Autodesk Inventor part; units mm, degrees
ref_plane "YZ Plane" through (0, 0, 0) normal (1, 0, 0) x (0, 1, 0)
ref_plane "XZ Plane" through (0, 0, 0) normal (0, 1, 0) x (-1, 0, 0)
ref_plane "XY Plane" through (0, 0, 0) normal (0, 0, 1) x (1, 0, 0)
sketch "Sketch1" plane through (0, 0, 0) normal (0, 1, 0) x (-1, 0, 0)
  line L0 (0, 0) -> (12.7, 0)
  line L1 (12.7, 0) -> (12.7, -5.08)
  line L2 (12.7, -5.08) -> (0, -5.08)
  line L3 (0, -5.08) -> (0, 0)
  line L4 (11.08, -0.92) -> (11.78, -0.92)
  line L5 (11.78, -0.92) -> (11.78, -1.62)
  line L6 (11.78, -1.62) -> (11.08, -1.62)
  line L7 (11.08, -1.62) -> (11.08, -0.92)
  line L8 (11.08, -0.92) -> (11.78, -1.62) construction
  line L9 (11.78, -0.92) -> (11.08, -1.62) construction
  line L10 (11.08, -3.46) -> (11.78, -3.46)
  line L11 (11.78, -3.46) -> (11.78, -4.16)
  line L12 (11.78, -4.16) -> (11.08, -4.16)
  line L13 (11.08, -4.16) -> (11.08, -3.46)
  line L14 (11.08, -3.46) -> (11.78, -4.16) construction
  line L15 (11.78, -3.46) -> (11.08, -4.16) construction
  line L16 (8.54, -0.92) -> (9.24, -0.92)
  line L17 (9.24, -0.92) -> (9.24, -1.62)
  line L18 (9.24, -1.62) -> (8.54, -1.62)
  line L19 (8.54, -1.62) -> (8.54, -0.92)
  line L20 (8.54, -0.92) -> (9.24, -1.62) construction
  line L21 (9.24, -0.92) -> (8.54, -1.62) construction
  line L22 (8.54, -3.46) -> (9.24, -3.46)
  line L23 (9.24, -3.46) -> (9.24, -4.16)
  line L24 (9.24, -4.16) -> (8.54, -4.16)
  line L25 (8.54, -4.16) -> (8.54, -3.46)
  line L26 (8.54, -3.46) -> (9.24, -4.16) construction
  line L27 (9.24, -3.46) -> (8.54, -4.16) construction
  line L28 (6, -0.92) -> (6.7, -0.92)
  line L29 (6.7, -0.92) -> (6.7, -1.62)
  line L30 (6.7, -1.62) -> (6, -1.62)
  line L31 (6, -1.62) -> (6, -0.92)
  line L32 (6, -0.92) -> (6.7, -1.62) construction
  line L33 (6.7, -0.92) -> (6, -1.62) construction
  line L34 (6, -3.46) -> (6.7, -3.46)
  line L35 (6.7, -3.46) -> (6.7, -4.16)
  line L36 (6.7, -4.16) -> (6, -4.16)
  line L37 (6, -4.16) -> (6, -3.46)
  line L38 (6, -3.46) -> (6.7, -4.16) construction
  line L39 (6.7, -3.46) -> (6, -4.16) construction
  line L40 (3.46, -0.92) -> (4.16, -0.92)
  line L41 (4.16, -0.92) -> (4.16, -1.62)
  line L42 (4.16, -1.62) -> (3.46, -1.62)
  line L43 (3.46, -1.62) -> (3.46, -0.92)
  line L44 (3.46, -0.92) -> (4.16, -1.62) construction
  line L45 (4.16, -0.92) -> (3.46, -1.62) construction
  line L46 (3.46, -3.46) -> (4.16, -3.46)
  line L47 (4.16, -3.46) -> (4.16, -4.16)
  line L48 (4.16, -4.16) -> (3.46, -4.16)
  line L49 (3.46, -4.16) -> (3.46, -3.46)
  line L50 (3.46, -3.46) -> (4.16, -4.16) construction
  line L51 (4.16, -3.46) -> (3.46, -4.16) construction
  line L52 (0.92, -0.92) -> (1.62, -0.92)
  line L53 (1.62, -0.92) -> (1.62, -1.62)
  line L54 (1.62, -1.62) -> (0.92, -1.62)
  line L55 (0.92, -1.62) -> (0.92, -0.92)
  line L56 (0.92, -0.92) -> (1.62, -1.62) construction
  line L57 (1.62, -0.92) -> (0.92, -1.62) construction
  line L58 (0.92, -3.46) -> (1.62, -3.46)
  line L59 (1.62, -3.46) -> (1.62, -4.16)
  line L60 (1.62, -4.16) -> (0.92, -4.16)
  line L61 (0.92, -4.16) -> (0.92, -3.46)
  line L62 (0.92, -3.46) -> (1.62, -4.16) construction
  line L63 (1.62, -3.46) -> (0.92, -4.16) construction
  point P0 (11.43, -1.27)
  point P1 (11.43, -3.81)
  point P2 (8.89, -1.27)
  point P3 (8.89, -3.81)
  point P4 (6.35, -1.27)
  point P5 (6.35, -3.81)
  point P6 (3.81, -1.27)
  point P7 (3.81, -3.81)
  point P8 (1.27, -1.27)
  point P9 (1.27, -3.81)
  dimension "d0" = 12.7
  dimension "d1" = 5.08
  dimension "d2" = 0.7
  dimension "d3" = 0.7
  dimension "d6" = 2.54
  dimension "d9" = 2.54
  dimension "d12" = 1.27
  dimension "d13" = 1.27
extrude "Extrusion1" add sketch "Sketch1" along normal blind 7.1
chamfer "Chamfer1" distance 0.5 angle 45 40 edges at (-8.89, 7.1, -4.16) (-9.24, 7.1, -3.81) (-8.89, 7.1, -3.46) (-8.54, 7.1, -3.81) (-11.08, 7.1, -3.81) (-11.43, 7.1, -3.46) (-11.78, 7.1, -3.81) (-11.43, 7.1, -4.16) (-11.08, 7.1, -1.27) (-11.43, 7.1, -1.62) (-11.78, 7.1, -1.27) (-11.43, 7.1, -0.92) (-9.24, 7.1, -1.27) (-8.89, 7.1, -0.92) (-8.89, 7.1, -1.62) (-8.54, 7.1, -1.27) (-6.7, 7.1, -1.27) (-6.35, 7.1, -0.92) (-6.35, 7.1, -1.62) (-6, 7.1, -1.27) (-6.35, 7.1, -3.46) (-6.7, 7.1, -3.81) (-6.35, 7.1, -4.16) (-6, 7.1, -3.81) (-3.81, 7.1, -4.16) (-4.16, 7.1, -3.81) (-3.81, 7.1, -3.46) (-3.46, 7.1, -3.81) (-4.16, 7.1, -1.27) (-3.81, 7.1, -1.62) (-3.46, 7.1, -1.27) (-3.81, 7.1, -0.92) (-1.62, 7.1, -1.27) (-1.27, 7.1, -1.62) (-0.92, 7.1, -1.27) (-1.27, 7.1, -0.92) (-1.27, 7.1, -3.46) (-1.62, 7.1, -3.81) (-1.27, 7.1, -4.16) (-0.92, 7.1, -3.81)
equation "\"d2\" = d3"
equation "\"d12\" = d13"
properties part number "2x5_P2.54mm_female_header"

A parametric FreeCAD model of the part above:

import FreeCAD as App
import Part
import Sketcher


def edges_at(feature, points):
    """Names of the edges that pass closest to the given points."""
    edges = feature.Shape.Edges
    near = lambda p: min(range(len(edges)), key=lambda i: edges[i].distToShape(Part.Vertex(*p))[0])
    return sorted({f"Edge{near(p) + 1}" for p in points})

doc = App.newDocument("Part")
body = doc.addObject("PartDesign::Body", "Body")

# Sketch on XZ plane
sketch1 = body.newObject("Sketcher::SketchObject", "Sketch")
sketch1.AttachmentSupport = (doc.getObject("XZ_Plane"), [""])
sketch1.MapMode = "FlatFace"
sketch1.addGeometry(Part.LineSegment(App.Vector(-12.7, 0, 0), App.Vector(0, 0, 0)), False)
sketch1.addGeometry(Part.LineSegment(App.Vector(0, 0, 0), App.Vector(0, -5.1, 0)), False)
sketch1.addGeometry(Part.LineSegment(App.Vector(0, -5.1, 0), App.Vector(-12.7, -5.1, 0)), False)
sketch1.addGeometry(Part.LineSegment(App.Vector(-12.7, -5.1, 0), App.Vector(-12.7, 0, 0)), False)
sketch1.addGeometry(Part.LineSegment(App.Vector(-0.9, -4.2, 0), App.Vector(-0.9, -3.5, 0)), False)
sketch1.addGeometry(Part.LineSegment(App.Vector(-0.9, -3.5, 0), App.Vector(-1.6, -3.5, 0)), False)
sketch1.addGeometry(Part.LineSegment(App.Vector(-1.6, -3.5, 0), App.Vector(-1.6, -4.2, 0)), False)
sketch1.addGeometry(Part.LineSegment(App.Vector(-1.6, -4.2, 0), App.Vector(-0.9, -4.2, 0)), False)
sketch1.addGeometry(Part.LineSegment(App.Vector(-3.5, -4.2, 0), App.Vector(-3.5, -3.5, 0)), False)
sketch1.addGeometry(Part.LineSegment(App.Vector(-3.5, -3.5, 0), App.Vector(-4.2, -3.5, 0)), False)
sketch1.addGeometry(Part.LineSegment(App.Vector(-4.2, -3.5, 0), App.Vector(-4.2, -4.2, 0)), False)
sketch1.addGeometry(Part.LineSegment(App.Vector(-4.2, -4.2, 0), App.Vector(-3.5, -4.2, 0)), False)
sketch1.addGeometry(Part.LineSegment(App.Vector(-6, -4.2, 0), App.Vector(-6, -3.5, 0)), False)
sketch1.addGeometry(Part.LineSegment(App.Vector(-6, -3.5, 0), App.Vector(-6.7, -3.5, 0)), False)
sketch1.addGeometry(Part.LineSegment(App.Vector(-6.7, -3.5, 0), App.Vector(-6.7, -4.2, 0)), False)
sketch1.addGeometry(Part.LineSegment(App.Vector(-6.7, -4.2, 0), App.Vector(-6, -4.2, 0)), False)
sketch1.addGeometry(Part.LineSegment(App.Vector(-8.5, -4.2, 0), App.Vector(-8.5, -3.5, 0)), False)
sketch1.addGeometry(Part.LineSegment(App.Vector(-8.5, -3.5, 0), App.Vector(-9.2, -3.5, 0)), False)
sketch1.addGeometry(Part.LineSegment(App.Vector(-9.2, -3.5, 0), App.Vector(-9.2, -4.2, 0)), False)
sketch1.addGeometry(Part.LineSegment(App.Vector(-9.2, -4.2, 0), App.Vector(-8.5, -4.2, 0)), False)
sketch1.addGeometry(Part.LineSegment(App.Vector(-11.1, -4.2, 0), App.Vector(-11.1, -3.5, 0)), False)
sketch1.addGeometry(Part.LineSegment(App.Vector(-11.1, -3.5, 0), App.Vector(-11.8, -3.5, 0)), False)
sketch1.addGeometry(Part.LineSegment(App.Vector(-11.8, -3.5, 0), App.Vector(-11.8, -4.2, 0)), False)
sketch1.addGeometry(Part.LineSegment(App.Vector(-11.8, -4.2, 0), App.Vector(-11.1, -4.2, 0)), False)
sketch1.addGeometry(Part.LineSegment(App.Vector(-0.9, -1.6, 0), App.Vector(-0.9, -0.9, 0)), False)
sketch1.addGeometry(Part.LineSegment(App.Vector(-0.9, -0.9, 0), App.Vector(-1.6, -0.9, 0)), False)
sketch1.addGeometry(Part.LineSegment(App.Vector(-1.6, -0.9, 0), App.Vector(-1.6, -1.6, 0)), False)
sketch1.addGeometry(Part.LineSegment(App.Vector(-1.6, -1.6, 0), App.Vector(-0.9, -1.6, 0)), False)
sketch1.addGeometry(Part.LineSegment(App.Vector(-3.5, -1.6, 0), App.Vector(-3.5, -0.9, 0)), False)
sketch1.addGeometry(Part.LineSegment(App.Vector(-3.5, -0.9, 0), App.Vector(-4.2, -0.9, 0)), False)
sketch1.addGeometry(Part.LineSegment(App.Vector(-4.2, -0.9, 0), App.Vector(-4.2, -1.6, 0)), False)
sketch1.addGeometry(Part.LineSegment(App.Vector(-4.2, -1.6, 0), App.Vector(-3.5, -1.6, 0)), False)
sketch1.addGeometry(Part.LineSegment(App.Vector(-6, -1.6, 0), App.Vector(-6, -0.9, 0)), False)
sketch1.addGeometry(Part.LineSegment(App.Vector(-6, -0.9, 0), App.Vector(-6.7, -0.9, 0)), False)
sketch1.addGeometry(Part.LineSegment(App.Vector(-6.7, -0.9, 0), App.Vector(-6.7, -1.6, 0)), False)
sketch1.addGeometry(Part.LineSegment(App.Vector(-6.7, -1.6, 0), App.Vector(-6, -1.6, 0)), False)
sketch1.addGeometry(Part.LineSegment(App.Vector(-8.5, -1.6, 0), App.Vector(-8.5, -0.9, 0)), False)
sketch1.addGeometry(Part.LineSegment(App.Vector(-8.5, -0.9, 0), App.Vector(-9.2, -0.9, 0)), False)
sketch1.addGeometry(Part.LineSegment(App.Vector(-9.2, -0.9, 0), App.Vector(-9.2, -1.6, 0)), False)
sketch1.addGeometry(Part.LineSegment(App.Vector(-9.2, -1.6, 0), App.Vector(-8.5, -1.6, 0)), False)
sketch1.addGeometry(Part.LineSegment(App.Vector(-11.1, -1.6, 0), App.Vector(-11.1, -0.9, 0)), False)
sketch1.addGeometry(Part.LineSegment(App.Vector(-11.1, -0.9, 0), App.Vector(-11.8, -0.9, 0)), False)
sketch1.addGeometry(Part.LineSegment(App.Vector(-11.8, -0.9, 0), App.Vector(-11.8, -1.6, 0)), False)
sketch1.addGeometry(Part.LineSegment(App.Vector(-11.8, -1.6, 0), App.Vector(-11.1, -1.6, 0)), False)
sketch1.addConstraint(Sketcher.Constraint("Coincident", 0, 2, 1, 1))
sketch1.addConstraint(Sketcher.Constraint("Coincident", 1, 2, 2, 1))
sketch1.addConstraint(Sketcher.Constraint("Coincident", 2, 2, 3, 1))
sketch1.addConstraint(Sketcher.Constraint("Coincident", 3, 2, 0, 1))
sketch1.addConstraint(Sketcher.Constraint("Coincident", 4, 2, 5, 1))
sketch1.addConstraint(Sketcher.Constraint("Coincident", 5, 2, 6, 1))
sketch1.addConstraint(Sketcher.Constraint("Coincident", 6, 2, 7, 1))
sketch1.addConstraint(Sketcher.Constraint("Coincident", 7, 2, 4, 1))
sketch1.addConstraint(Sketcher.Constraint("Coincident", 8, 2, 9, 1))
sketch1.addConstraint(Sketcher.Constraint("Coincident", 9, 2, 10, 1))
sketch1.addConstraint(Sketcher.Constraint("Coincident", 10, 2, 11, 1))
sketch1.addConstraint(Sketcher.Constraint("Coincident", 11, 2, 8, 1))
sketch1.addConstraint(Sketcher.Constraint("Coincident", 12, 2, 13, 1))
sketch1.addConstraint(Sketcher.Constraint("Coincident", 13, 2, 14, 1))
sketch1.addConstraint(Sketcher.Constraint("Coincident", 14, 2, 15, 1))
sketch1.addConstraint(Sketcher.Constraint("Coincident", 15, 2, 12, 1))
sketch1.addConstraint(Sketcher.Constraint("Coincident", 16, 2, 17, 1))
sketch1.addConstraint(Sketcher.Constraint("Coincident", 17, 2, 18, 1))
sketch1.addConstraint(Sketcher.Constraint("Coincident", 18, 2, 19, 1))
sketch1.addConstraint(Sketcher.Constraint("Coincident", 19, 2, 16, 1))
sketch1.addConstraint(Sketcher.Constraint("Coincident", 20, 2, 21, 1))
sketch1.addConstraint(Sketcher.Constraint("Coincident", 21, 2, 22, 1))
sketch1.addConstraint(Sketcher.Constraint("Coincident", 22, 2, 23, 1))
sketch1.addConstraint(Sketcher.Constraint("Coincident", 23, 2, 20, 1))
sketch1.addConstraint(Sketcher.Constraint("Coincident", 24, 2, 25, 1))
sketch1.addConstraint(Sketcher.Constraint("Coincident", 25, 2, 26, 1))
sketch1.addConstraint(Sketcher.Constraint("Coincident", 26, 2, 27, 1))
sketch1.addConstraint(Sketcher.Constraint("Coincident", 27, 2, 24, 1))
sketch1.addConstraint(Sketcher.Constraint("Coincident", 28, 2, 29, 1))
sketch1.addConstraint(Sketcher.Constraint("Coincident", 29, 2, 30, 1))
sketch1.addConstraint(Sketcher.Constraint("Coincident", 30, 2, 31, 1))
sketch1.addConstraint(Sketcher.Constraint("Coincident", 31, 2, 28, 1))
sketch1.addConstraint(Sketcher.Constraint("Coincident", 32, 2, 33, 1))
sketch1.addConstraint(Sketcher.Constraint("Coincident", 33, 2, 34, 1))
sketch1.addConstraint(Sketcher.Constraint("Coincident", 34, 2, 35, 1))
sketch1.addConstraint(Sketcher.Constraint("Coincident", 35, 2, 32, 1))
sketch1.addConstraint(Sketcher.Constraint("Coincident", 36, 2, 37, 1))
sketch1.addConstraint(Sketcher.Constraint("Coincident", 37, 2, 38, 1))
sketch1.addConstraint(Sketcher.Constraint("Coincident", 38, 2, 39, 1))
sketch1.addConstraint(Sketcher.Constraint("Coincident", 39, 2, 36, 1))
sketch1.addConstraint(Sketcher.Constraint("Coincident", 40, 2, 41, 1))
sketch1.addConstraint(Sketcher.Constraint("Coincident", 41, 2, 42, 1))
sketch1.addConstraint(Sketcher.Constraint("Coincident", 42, 2, 43, 1))
sketch1.addConstraint(Sketcher.Constraint("Coincident", 43, 2, 40, 1))
sketch1.addConstraint(Sketcher.Constraint("Horizontal", 0))
sketch1.addConstraint(Sketcher.Constraint("Vertical", 1))
sketch1.addConstraint(Sketcher.Constraint("Horizontal", 2))
sketch1.addConstraint(Sketcher.Constraint("Vertical", 3))
sketch1.addConstraint(Sketcher.Constraint("Vertical", 4))
sketch1.addConstraint(Sketcher.Constraint("Horizontal", 5))
sketch1.addConstraint(Sketcher.Constraint("Vertical", 6))
sketch1.addConstraint(Sketcher.Constraint("Horizontal", 7))
sketch1.addConstraint(Sketcher.Constraint("Vertical", 8))
sketch1.addConstraint(Sketcher.Constraint("Horizontal", 9))
sketch1.addConstraint(Sketcher.Constraint("Vertical", 10))
sketch1.addConstraint(Sketcher.Constraint("Horizontal", 11))
sketch1.addConstraint(Sketcher.Constraint("Vertical", 12))
sketch1.addConstraint(Sketcher.Constraint("Horizontal", 13))
sketch1.addConstraint(Sketcher.Constraint("Vertical", 14))
sketch1.addConstraint(Sketcher.Constraint("Horizontal", 15))
sketch1.addConstraint(Sketcher.Constraint("Vertical", 16))
sketch1.addConstraint(Sketcher.Constraint("Horizontal", 17))
sketch1.addConstraint(Sketcher.Constraint("Vertical", 18))
sketch1.addConstraint(Sketcher.Constraint("Horizontal", 19))
sketch1.addConstraint(Sketcher.Constraint("Vertical", 20))
sketch1.addConstraint(Sketcher.Constraint("Horizontal", 21))
sketch1.addConstraint(Sketcher.Constraint("Vertical", 22))
sketch1.addConstraint(Sketcher.Constraint("Horizontal", 23))
sketch1.addConstraint(Sketcher.Constraint("Vertical", 24))
sketch1.addConstraint(Sketcher.Constraint("Horizontal", 25))
sketch1.addConstraint(Sketcher.Constraint("Vertical", 26))
sketch1.addConstraint(Sketcher.Constraint("Horizontal", 27))
sketch1.addConstraint(Sketcher.Constraint("Vertical", 28))
sketch1.addConstraint(Sketcher.Constraint("Horizontal", 29))
sketch1.addConstraint(Sketcher.Constraint("Vertical", 30))
sketch1.addConstraint(Sketcher.Constraint("Horizontal", 31))
sketch1.addConstraint(Sketcher.Constraint("Vertical", 32))
sketch1.addConstraint(Sketcher.Constraint("Horizontal", 33))
sketch1.addConstraint(Sketcher.Constraint("Vertical", 34))
sketch1.addConstraint(Sketcher.Constraint("Horizontal", 35))
sketch1.addConstraint(Sketcher.Constraint("Vertical", 36))
sketch1.addConstraint(Sketcher.Constraint("Horizontal", 37))
sketch1.addConstraint(Sketcher.Constraint("Vertical", 38))
sketch1.addConstraint(Sketcher.Constraint("Horizontal", 39))
sketch1.addConstraint(Sketcher.Constraint("Vertical", 40))
sketch1.addConstraint(Sketcher.Constraint("Horizontal", 41))
sketch1.addConstraint(Sketcher.Constraint("Vertical", 42))
sketch1.addConstraint(Sketcher.Constraint("Horizontal", 43))
sketch1.addConstraint(Sketcher.Constraint("Coincident", 0, 2, -1, 1))
sketch1.addConstraint(Sketcher.Constraint("Horizontal", 5, 2, 8, 2))
sketch1.addConstraint(Sketcher.Constraint("Horizontal", 7, 2, 10, 2))
sketch1.addConstraint(Sketcher.Constraint("Horizontal", 9, 2, 12, 2))
sketch1.addConstraint(Sketcher.Constraint("Horizontal", 11, 2, 14, 2))
sketch1.addConstraint(Sketcher.Constraint("Horizontal", 13, 2, 16, 2))
sketch1.addConstraint(Sketcher.Constraint("Horizontal", 15, 2, 18, 2))
sketch1.addConstraint(Sketcher.Constraint("Horizontal", 17, 2, 20, 2))
sketch1.addConstraint(Sketcher.Constraint("Horizontal", 19, 2, 22, 2))
sketch1.addConstraint(Sketcher.Constraint("Horizontal", 25, 2, 28, 2))
sketch1.addConstraint(Sketcher.Constraint("Horizontal", 27, 2, 30, 2))
sketch1.addConstraint(Sketcher.Constraint("Horizontal", 29, 2, 32, 2))
sketch1.addConstraint(Sketcher.Constraint("Horizontal", 31, 2, 34, 2))
sketch1.addConstraint(Sketcher.Constraint("Horizontal", 33, 2, 36, 2))
sketch1.addConstraint(Sketcher.Constraint("Horizontal", 35, 2, 38, 2))
sketch1.addConstraint(Sketcher.Constraint("Horizontal", 37, 2, 40, 2))
sketch1.addConstraint(Sketcher.Constraint("Horizontal", 39, 2, 42, 2))
sketch1.addConstraint(Sketcher.Constraint("Vertical", 7, 2, 24, 2))
sketch1.addConstraint(Sketcher.Constraint("Vertical", 6, 2, 25, 2))
sketch1.addConstraint(Sketcher.Constraint("Vertical", 11, 2, 28, 2))
sketch1.addConstraint(Sketcher.Constraint("Vertical", 10, 2, 29, 2))
sketch1.addConstraint(Sketcher.Constraint("Vertical", 15, 2, 32, 2))
sketch1.addConstraint(Sketcher.Constraint("Vertical", 14, 2, 33, 2))
sketch1.addConstraint(Sketcher.Constraint("Vertical", 19, 2, 36, 2))
sketch1.addConstraint(Sketcher.Constraint("Vertical", 18, 2, 37, 2))
sketch1.addConstraint(Sketcher.Constraint("Vertical", 23, 2, 40, 2))
sketch1.addConstraint(Sketcher.Constraint("Vertical", 22, 2, 41, 2))
sketch1.addConstraint(Sketcher.Constraint("Equal", 7, 9))
sketch1.addConstraint(Sketcher.Constraint("Equal", 11, 13))
sketch1.addConstraint(Sketcher.Constraint("Equal", 15, 17))
sketch1.addConstraint(Sketcher.Constraint("Equal", 19, 21))
sketch1.addConstraint(Sketcher.Constraint("Equal", 43, 4))
sketch1.addConstraint(Sketcher.Constraint("Equal", 22, 24))
sketch1.addConstraint(Sketcher.Constraint("DistanceX", 0, 1, 0, 2, 12.7))
sketch1.addConstraint(Sketcher.Constraint("DistanceX", 5, 2, 5, 1, 0.7))
sketch1.addConstraint(Sketcher.Constraint("DistanceY", 1, 2, 1, 1, 5.08))
sketch1.addConstraint(Sketcher.Constraint("DistanceX", 8, 2, 4, 2, 2.54))
sketch1.addConstraint(Sketcher.Constraint("DistanceX", 12, 2, 8, 2, 2.54))
sketch1.addConstraint(Sketcher.Constraint("DistanceX", 16, 2, 12, 2, 2.54))
sketch1.addConstraint(Sketcher.Constraint("DistanceX", 20, 2, 16, 2, 2.54))
sketch1.addConstraint(Sketcher.Constraint("DistanceY", 4, 2, 24, 2, 2.54))
sketch1.addConstraint(Sketcher.Constraint("DistanceX", 12, 2, -1, 1, 6.0))
sketch1.addConstraint(Sketcher.Constraint("DistanceY", 4, 2, -1, 1, 3.46))
pad1 = body.newObject("PartDesign::Pad", "Pad")
pad1.Profile = sketch1
pad1.Length = 7.1
pad1.Reversed = True
doc.recompute()

chamfer = body.newObject("PartDesign::Chamfer", "Chamfer")
chamfer.Base = (pad1, edges_at(pad1, [
    (-8.89, 7.1, -4.16),
    (-9.24, 7.1, -3.81),
    (-8.89, 7.1, -3.46),
    (-8.54, 7.1, -3.81),
    (-11.08, 7.1, -3.81),
    (-11.43, 7.1, -3.46),
    (-11.78, 7.1, -3.81),
    (-11.43, 7.1, -4.16),
    (-11.08, 7.1, -1.27),
    (-11.43, 7.1, -1.62),
    (-11.78, 7.1, -1.27),
    (-11.43, 7.1, -0.92),
    (-9.24, 7.1, -1.27),
    (-8.89, 7.1, -0.92),
    (-8.89, 7.1, -1.62),
    (-8.54, 7.1, -1.27),
    (-6.7, 7.1, -1.27),
    (-6.35, 7.1, -0.92),
    (-6.35, 7.1, -1.62),
    (-6, 7.1, -1.27),
    (-6.35, 7.1, -3.46),
    (-6.7, 7.1, -3.81),
    (-6.35, 7.1, -4.16),
    (-6, 7.1, -3.81),
    (-3.81, 7.1, -4.16),
    (-4.16, 7.1, -3.81),
    (-3.81, 7.1, -3.46),
    (-3.46, 7.1, -3.81),
    (-4.16, 7.1, -1.27),
    (-3.81, 7.1, -1.62),
    (-3.46, 7.1, -1.27),
    (-3.81, 7.1, -0.92),
    (-1.62, 7.1, -1.27),
    (-1.27, 7.1, -1.62),
    (-0.92, 7.1, -1.27),
    (-1.27, 7.1, -0.92),
    (-1.27, 7.1, -3.46),
    (-1.62, 7.1, -3.81),
    (-1.27, 7.1, -4.16),
    (-0.92, 7.1, -3.81),
]))
chamfer.Size = 0.5

doc.recompute()
